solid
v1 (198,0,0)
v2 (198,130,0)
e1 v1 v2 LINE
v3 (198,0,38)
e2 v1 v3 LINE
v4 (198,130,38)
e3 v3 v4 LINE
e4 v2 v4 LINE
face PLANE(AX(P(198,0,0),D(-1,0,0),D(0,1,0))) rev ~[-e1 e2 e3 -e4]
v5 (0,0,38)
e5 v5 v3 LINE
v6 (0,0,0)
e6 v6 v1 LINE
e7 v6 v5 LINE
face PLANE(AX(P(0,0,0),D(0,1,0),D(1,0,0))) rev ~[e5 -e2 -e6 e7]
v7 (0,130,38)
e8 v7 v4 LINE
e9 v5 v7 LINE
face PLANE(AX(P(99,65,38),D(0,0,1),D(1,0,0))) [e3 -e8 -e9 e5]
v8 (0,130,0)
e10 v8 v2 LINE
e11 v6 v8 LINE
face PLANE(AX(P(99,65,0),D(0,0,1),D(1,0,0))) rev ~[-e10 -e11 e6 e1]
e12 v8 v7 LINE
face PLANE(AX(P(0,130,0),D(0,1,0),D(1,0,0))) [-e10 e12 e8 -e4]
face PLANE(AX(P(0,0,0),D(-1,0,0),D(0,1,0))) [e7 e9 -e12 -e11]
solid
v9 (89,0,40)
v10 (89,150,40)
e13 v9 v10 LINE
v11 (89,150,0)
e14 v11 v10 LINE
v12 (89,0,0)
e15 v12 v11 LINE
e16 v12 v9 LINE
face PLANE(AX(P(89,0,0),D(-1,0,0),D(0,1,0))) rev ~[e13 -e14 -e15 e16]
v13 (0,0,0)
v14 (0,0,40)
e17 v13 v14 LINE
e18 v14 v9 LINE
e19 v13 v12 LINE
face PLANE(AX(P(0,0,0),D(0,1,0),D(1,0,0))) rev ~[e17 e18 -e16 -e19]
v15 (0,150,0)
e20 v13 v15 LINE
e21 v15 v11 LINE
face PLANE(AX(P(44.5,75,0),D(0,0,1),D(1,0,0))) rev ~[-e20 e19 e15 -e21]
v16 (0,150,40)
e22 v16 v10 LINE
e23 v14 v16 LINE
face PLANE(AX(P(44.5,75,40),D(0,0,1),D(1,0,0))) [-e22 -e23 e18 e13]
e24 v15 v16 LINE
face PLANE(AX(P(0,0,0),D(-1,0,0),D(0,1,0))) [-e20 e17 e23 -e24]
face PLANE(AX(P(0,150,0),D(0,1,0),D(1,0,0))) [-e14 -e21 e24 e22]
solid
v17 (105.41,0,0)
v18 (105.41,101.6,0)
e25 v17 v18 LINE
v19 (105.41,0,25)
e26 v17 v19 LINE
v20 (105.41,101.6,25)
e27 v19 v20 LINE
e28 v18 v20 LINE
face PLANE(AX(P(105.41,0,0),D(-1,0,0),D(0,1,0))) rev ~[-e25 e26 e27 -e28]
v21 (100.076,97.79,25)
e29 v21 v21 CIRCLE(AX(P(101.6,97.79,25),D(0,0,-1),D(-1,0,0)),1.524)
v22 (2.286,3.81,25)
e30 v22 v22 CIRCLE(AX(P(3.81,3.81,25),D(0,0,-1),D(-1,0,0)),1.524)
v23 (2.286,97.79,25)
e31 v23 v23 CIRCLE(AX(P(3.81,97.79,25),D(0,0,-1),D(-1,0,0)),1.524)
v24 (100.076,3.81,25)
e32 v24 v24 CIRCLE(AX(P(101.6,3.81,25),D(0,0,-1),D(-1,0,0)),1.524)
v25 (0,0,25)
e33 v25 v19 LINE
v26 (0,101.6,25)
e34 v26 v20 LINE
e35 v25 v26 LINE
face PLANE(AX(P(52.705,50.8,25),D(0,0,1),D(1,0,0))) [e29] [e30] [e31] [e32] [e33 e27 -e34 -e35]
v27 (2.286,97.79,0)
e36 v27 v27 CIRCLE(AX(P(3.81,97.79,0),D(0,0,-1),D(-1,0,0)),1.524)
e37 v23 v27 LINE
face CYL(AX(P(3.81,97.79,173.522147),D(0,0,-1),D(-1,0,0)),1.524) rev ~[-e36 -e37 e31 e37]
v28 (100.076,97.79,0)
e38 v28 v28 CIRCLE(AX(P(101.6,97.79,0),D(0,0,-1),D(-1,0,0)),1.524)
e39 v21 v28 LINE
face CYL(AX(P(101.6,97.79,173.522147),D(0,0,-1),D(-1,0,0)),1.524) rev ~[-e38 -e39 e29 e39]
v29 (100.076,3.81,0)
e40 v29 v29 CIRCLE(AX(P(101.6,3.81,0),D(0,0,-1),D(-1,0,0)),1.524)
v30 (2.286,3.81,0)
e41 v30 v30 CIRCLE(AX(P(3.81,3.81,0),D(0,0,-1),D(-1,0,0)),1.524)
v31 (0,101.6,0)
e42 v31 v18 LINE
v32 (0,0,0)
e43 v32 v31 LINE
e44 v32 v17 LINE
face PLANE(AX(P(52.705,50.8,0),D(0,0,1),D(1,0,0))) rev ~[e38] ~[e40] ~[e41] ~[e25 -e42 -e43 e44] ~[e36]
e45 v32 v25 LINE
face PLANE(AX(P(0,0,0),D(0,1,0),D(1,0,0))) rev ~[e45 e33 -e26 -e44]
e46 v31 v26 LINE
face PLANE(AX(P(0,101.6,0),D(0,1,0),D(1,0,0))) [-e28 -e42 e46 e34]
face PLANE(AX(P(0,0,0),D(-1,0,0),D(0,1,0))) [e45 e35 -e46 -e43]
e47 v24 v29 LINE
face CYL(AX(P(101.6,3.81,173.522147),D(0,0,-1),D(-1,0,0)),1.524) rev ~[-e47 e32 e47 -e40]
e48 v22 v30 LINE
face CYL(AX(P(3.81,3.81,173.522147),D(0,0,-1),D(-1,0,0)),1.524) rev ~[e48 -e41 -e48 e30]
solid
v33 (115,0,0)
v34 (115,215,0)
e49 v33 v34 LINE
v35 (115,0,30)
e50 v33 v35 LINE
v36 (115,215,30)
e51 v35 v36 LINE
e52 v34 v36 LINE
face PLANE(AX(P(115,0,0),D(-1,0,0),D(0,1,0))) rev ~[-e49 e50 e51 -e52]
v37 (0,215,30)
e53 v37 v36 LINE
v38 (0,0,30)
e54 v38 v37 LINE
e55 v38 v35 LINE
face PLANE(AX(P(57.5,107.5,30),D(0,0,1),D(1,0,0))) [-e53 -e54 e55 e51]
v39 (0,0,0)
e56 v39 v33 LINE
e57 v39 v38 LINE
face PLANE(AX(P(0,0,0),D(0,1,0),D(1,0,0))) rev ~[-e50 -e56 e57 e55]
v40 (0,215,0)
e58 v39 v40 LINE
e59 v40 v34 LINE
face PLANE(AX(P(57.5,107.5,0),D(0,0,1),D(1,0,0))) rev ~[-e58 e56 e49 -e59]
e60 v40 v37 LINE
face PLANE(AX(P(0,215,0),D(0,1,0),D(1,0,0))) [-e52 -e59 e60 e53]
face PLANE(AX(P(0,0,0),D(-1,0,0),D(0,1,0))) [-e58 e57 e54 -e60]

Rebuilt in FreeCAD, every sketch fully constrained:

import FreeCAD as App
import Part
import Sketcher
from FreeCAD import Vector


def add_polygon(sketch, points):
    """Adds a closed chain of lines whose ends are joined by coincident constraints."""
    first, n = sketch.GeometryCount, len(points)
    for a, b in zip(points, points[1:] + points[:1]):
        sketch.addGeometry(Part.LineSegment(App.Vector(*a, 0), App.Vector(*b, 0)), False)
    for i in range(n):
        sketch.addConstraint(Sketcher.Constraint("Coincident", first + i, 2, first + (i + 1) % n, 1))

doc = App.newDocument("Part")
body = doc.addObject("PartDesign::Body", "Body")

sketch1 = body.newObject("Sketcher::SketchObject", "Sketch")
sketch1.AttachmentSupport = (doc.getObject("XY_Plane"), [""])
sketch1.MapMode = "FlatFace"
add_polygon(sketch1, [(0, 101.6), (0, 0), (105.41, 0), (105.41, 101.6)])
sketch1.addConstraint(Sketcher.Constraint("Vertical", 0))
sketch1.addConstraint(Sketcher.Constraint("Horizontal", 1))
sketch1.addConstraint(Sketcher.Constraint("Vertical", 2))
sketch1.addConstraint(Sketcher.Constraint("Horizontal", 3))
sketch1.addConstraint(Sketcher.Constraint("Coincident", 0, 2, -1, 1))
sketch1.addConstraint(Sketcher.Constraint("DistanceY", 0, 2, 0, 1, 101.6))
sketch1.addConstraint(Sketcher.Constraint("DistanceX", 1, 1, 1, 2, 105.41))
pad1 = body.newObject("PartDesign::Pad", "Pad")
pad1.Profile = sketch1
pad1.Length = 25

sketch2 = body.newObject("Sketcher::SketchObject", "Sketch001")
sketch2.AttachmentSupport = (doc.getObject("XY_Plane"), [""])
sketch2.MapMode = "FlatFace"
sketch2.AttachmentOffset = App.Placement(Vector(0, 0, 25), App.Rotation())
sketch2.addGeometry(Part.Circle(Vector(3.81, 97.79, 0), Vector(0, 0, 1), 1.524), False)
sketch2.addConstraint(Sketcher.Constraint("Diameter", 0, 3.048))
sketch2.addConstraint(Sketcher.Constraint("DistanceX", -1, 1, 0, 3, 3.81))
sketch2.addConstraint(Sketcher.Constraint("DistanceY", -1, 1, 0, 3, 97.79))
doc.recompute()
hole = body.newObject("PartDesign::Hole", "Hole")
hole.Profile = sketch2
hole.ThreadType = "None"
hole.Diameter = 3.048
hole.DepthType = "ThroughAll"

sketch3 = body.newObject("Sketcher::SketchObject", "Sketch002")
sketch3.AttachmentSupport = (doc.getObject("XY_Plane"), [""])
sketch3.MapMode = "FlatFace"
sketch3.AttachmentOffset = App.Placement(Vector(0, 0, 25), App.Rotation())
sketch3.addGeometry(Part.Circle(Vector(101.6, 97.79, 0), Vector(0, 0, 1), 1.524), False)
sketch3.addConstraint(Sketcher.Constraint("Diameter", 0, 3.048))
sketch3.addConstraint(Sketcher.Constraint("DistanceX", -1, 1, 0, 3, 101.6))
sketch3.addConstraint(Sketcher.Constraint("DistanceY", -1, 1, 0, 3, 97.79))
doc.recompute()
hole2 = body.newObject("PartDesign::Hole", "Hole001")
hole2.Profile = sketch3
hole2.ThreadType = "None"
hole2.Diameter = 3.048
hole2.DepthType = "ThroughAll"

sketch4 = body.newObject("Sketcher::SketchObject", "Sketch003")
sketch4.AttachmentSupport = (doc.getObject("XY_Plane"), [""])
sketch4.MapMode = "FlatFace"
sketch4.AttachmentOffset = App.Placement(Vector(0, 0, 25), App.Rotation())
sketch4.addGeometry(Part.Circle(Vector(3.81, 3.81, 0), Vector(0, 0, 1), 1.524), False)
sketch4.addConstraint(Sketcher.Constraint("Diameter", 0, 3.048))
sketch4.addConstraint(Sketcher.Constraint("DistanceX", -1, 1, 0, 3, 3.81))
sketch4.addConstraint(Sketcher.Constraint("DistanceY", -1, 1, 0, 3, 3.81))
doc.recompute()
hole3 = body.newObject("PartDesign::Hole", "Hole002")
hole3.Profile = sketch4
hole3.ThreadType = "None"
hole3.Diameter = 3.048
hole3.DepthType = "ThroughAll"

sketch5 = body.newObject("Sketcher::SketchObject", "Sketch004")
sketch5.AttachmentSupport = (doc.getObject("XY_Plane"), [""])
sketch5.MapMode = "FlatFace"
sketch5.AttachmentOffset = App.Placement(Vector(0, 0, 25), App.Rotation())
sketch5.addGeometry(Part.Circle(Vector(101.6, 3.81, 0), Vector(0, 0, 1), 1.524), False)
sketch5.addConstraint(Sketcher.Constraint("Diameter", 0, 3.048))
sketch5.addConstraint(Sketcher.Constraint("DistanceX", -1, 1, 0, 3, 101.6))
sketch5.addConstraint(Sketcher.Constraint("DistanceY", -1, 1, 0, 3, 3.81))
doc.recompute()
hole4 = body.newObject("PartDesign::Hole", "Hole003")
hole4.Profile = sketch5
hole4.ThreadType = "None"
hole4.Diameter = 3.048
hole4.DepthType = "ThroughAll"
body2 = doc.addObject("PartDesign::Body", "Body001")

sketch6 = body2.newObject("Sketcher::SketchObject", "Sketch005")
sketch6.AttachmentSupport = (doc.getObject("XY_Plane001"), [""])
sketch6.MapMode = "FlatFace"
add_polygon(sketch6, [(0, 215), (0, 0), (115, 0), (115, 215)])
sketch6.addConstraint(Sketcher.Constraint("Vertical", 0))
sketch6.addConstraint(Sketcher.Constraint("Horizontal", 1))
sketch6.addConstraint(Sketcher.Constraint("Vertical", 2))
sketch6.addConstraint(Sketcher.Constraint("Horizontal", 3))
sketch6.addConstraint(Sketcher.Constraint("Coincident", 0, 2, -1, 1))
sketch6.addConstraint(Sketcher.Constraint("DistanceX", 1, 1, 1, 2, 115.0))
sketch6.addConstraint(Sketcher.Constraint("DistanceY", 0, 2, 0, 1, 215.0))
pad2 = body2.newObject("PartDesign::Pad", "Pad001")
pad2.Profile = sketch6
pad2.Length = 30
body3 = doc.addObject("PartDesign::Body", "Body002")

sketch7 = body3.newObject("Sketcher::SketchObject", "Sketch006")
sketch7.AttachmentSupport = (doc.getObject("XY_Plane002"), [""])
sketch7.MapMode = "FlatFace"
add_polygon(sketch7, [(0, 130), (0, 0), (198, 0), (198, 130)])
sketch7.addConstraint(Sketcher.Constraint("Vertical", 0))
sketch7.addConstraint(Sketcher.Constraint("Horizontal", 1))
sketch7.addConstraint(Sketcher.Constraint("Vertical", 2))
sketch7.addConstraint(Sketcher.Constraint("Horizontal", 3))
sketch7.addConstraint(Sketcher.Constraint("Coincident", 0, 2, -1, 1))
sketch7.addConstraint(Sketcher.Constraint("DistanceX", 1, 1, 1, 2, 198.0))
sketch7.addConstraint(Sketcher.Constraint("DistanceY", 0, 2, 0, 1, 130.0))
pad3 = body3.newObject("PartDesign::Pad", "Pad002")
pad3.Profile = sketch7
pad3.Length = 38
body4 = doc.addObject("PartDesign::Body", "Body003")

sketch8 = body4.newObject("Sketcher::SketchObject", "Sketch007")
sketch8.AttachmentSupport = (doc.getObject("XY_Plane003"), [""])
sketch8.MapMode = "FlatFace"
add_polygon(sketch8, [(0, 150), (0, 0), (89, 0), (89, 150)])
sketch8.addConstraint(Sketcher.Constraint("Vertical", 0))
sketch8.addConstraint(Sketcher.Constraint("Horizontal", 1))
sketch8.addConstraint(Sketcher.Constraint("Vertical", 2))
sketch8.addConstraint(Sketcher.Constraint("Horizontal", 3))
sketch8.addConstraint(Sketcher.Constraint("Coincident", 0, 2, -1, 1))
sketch8.addConstraint(Sketcher.Constraint("DistanceX", 1, 1, 1, 2, 89.0))
sketch8.addConstraint(Sketcher.Constraint("DistanceY", 0, 2, 0, 1, 150.0))
pad4 = body4.newObject("PartDesign::Pad", "Pad003")
pad4.Profile = sketch8
pad4.Length = 40

doc.recompute()
